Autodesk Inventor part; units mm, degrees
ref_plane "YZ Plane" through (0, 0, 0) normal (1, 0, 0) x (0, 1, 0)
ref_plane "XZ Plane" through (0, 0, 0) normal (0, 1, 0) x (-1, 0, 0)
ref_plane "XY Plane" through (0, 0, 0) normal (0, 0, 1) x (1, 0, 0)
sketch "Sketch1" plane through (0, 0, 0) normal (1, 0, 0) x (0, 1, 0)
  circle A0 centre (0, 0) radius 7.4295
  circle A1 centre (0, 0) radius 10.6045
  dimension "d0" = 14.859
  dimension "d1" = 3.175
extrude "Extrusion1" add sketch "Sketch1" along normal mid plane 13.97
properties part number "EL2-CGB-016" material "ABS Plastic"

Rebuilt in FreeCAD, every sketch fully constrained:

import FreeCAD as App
import Part
import Sketcher

V = App.Vector
Q = App.Units.Quantity

doc = App.newDocument("Part")
body = doc.addObject("PartDesign::Body", "Body")

# Sketch on YZ plane
sketch1 = doc.addObject("Sketcher::SketchObject", "Sketch")
body.addObject(sketch1)
sketch1.AttachmentSupport = (doc.YZ_Plane, [""])
sketch1.MapMode = "FlatFace"
sketch1.addGeometry([
    Part.Circle(V(0, 0, 0), V(0, 0, 1), 10.6045),
    Part.Circle(V(0, 0, 0), V(0, 0, 1), 7.4295),
], False)
sketch1.addConstraint([
    Sketcher.Constraint("Coincident", 0, 3, -1, 1),
    Sketcher.Constraint("Coincident", 1, 3, -1, 1),
    Sketcher.Constraint("Diameter", 1, Q("0.585 in")),
    Sketcher.Constraint("Diameter", 0, Q("0.835 in")),
])
pad1 = doc.addObject("PartDesign::Pad", "Pad")
body.addObject(pad1)
pad1.Profile = sketch1
pad1.Length = Q("0.55 in")
pad1.Midplane = True

doc.recompute()
